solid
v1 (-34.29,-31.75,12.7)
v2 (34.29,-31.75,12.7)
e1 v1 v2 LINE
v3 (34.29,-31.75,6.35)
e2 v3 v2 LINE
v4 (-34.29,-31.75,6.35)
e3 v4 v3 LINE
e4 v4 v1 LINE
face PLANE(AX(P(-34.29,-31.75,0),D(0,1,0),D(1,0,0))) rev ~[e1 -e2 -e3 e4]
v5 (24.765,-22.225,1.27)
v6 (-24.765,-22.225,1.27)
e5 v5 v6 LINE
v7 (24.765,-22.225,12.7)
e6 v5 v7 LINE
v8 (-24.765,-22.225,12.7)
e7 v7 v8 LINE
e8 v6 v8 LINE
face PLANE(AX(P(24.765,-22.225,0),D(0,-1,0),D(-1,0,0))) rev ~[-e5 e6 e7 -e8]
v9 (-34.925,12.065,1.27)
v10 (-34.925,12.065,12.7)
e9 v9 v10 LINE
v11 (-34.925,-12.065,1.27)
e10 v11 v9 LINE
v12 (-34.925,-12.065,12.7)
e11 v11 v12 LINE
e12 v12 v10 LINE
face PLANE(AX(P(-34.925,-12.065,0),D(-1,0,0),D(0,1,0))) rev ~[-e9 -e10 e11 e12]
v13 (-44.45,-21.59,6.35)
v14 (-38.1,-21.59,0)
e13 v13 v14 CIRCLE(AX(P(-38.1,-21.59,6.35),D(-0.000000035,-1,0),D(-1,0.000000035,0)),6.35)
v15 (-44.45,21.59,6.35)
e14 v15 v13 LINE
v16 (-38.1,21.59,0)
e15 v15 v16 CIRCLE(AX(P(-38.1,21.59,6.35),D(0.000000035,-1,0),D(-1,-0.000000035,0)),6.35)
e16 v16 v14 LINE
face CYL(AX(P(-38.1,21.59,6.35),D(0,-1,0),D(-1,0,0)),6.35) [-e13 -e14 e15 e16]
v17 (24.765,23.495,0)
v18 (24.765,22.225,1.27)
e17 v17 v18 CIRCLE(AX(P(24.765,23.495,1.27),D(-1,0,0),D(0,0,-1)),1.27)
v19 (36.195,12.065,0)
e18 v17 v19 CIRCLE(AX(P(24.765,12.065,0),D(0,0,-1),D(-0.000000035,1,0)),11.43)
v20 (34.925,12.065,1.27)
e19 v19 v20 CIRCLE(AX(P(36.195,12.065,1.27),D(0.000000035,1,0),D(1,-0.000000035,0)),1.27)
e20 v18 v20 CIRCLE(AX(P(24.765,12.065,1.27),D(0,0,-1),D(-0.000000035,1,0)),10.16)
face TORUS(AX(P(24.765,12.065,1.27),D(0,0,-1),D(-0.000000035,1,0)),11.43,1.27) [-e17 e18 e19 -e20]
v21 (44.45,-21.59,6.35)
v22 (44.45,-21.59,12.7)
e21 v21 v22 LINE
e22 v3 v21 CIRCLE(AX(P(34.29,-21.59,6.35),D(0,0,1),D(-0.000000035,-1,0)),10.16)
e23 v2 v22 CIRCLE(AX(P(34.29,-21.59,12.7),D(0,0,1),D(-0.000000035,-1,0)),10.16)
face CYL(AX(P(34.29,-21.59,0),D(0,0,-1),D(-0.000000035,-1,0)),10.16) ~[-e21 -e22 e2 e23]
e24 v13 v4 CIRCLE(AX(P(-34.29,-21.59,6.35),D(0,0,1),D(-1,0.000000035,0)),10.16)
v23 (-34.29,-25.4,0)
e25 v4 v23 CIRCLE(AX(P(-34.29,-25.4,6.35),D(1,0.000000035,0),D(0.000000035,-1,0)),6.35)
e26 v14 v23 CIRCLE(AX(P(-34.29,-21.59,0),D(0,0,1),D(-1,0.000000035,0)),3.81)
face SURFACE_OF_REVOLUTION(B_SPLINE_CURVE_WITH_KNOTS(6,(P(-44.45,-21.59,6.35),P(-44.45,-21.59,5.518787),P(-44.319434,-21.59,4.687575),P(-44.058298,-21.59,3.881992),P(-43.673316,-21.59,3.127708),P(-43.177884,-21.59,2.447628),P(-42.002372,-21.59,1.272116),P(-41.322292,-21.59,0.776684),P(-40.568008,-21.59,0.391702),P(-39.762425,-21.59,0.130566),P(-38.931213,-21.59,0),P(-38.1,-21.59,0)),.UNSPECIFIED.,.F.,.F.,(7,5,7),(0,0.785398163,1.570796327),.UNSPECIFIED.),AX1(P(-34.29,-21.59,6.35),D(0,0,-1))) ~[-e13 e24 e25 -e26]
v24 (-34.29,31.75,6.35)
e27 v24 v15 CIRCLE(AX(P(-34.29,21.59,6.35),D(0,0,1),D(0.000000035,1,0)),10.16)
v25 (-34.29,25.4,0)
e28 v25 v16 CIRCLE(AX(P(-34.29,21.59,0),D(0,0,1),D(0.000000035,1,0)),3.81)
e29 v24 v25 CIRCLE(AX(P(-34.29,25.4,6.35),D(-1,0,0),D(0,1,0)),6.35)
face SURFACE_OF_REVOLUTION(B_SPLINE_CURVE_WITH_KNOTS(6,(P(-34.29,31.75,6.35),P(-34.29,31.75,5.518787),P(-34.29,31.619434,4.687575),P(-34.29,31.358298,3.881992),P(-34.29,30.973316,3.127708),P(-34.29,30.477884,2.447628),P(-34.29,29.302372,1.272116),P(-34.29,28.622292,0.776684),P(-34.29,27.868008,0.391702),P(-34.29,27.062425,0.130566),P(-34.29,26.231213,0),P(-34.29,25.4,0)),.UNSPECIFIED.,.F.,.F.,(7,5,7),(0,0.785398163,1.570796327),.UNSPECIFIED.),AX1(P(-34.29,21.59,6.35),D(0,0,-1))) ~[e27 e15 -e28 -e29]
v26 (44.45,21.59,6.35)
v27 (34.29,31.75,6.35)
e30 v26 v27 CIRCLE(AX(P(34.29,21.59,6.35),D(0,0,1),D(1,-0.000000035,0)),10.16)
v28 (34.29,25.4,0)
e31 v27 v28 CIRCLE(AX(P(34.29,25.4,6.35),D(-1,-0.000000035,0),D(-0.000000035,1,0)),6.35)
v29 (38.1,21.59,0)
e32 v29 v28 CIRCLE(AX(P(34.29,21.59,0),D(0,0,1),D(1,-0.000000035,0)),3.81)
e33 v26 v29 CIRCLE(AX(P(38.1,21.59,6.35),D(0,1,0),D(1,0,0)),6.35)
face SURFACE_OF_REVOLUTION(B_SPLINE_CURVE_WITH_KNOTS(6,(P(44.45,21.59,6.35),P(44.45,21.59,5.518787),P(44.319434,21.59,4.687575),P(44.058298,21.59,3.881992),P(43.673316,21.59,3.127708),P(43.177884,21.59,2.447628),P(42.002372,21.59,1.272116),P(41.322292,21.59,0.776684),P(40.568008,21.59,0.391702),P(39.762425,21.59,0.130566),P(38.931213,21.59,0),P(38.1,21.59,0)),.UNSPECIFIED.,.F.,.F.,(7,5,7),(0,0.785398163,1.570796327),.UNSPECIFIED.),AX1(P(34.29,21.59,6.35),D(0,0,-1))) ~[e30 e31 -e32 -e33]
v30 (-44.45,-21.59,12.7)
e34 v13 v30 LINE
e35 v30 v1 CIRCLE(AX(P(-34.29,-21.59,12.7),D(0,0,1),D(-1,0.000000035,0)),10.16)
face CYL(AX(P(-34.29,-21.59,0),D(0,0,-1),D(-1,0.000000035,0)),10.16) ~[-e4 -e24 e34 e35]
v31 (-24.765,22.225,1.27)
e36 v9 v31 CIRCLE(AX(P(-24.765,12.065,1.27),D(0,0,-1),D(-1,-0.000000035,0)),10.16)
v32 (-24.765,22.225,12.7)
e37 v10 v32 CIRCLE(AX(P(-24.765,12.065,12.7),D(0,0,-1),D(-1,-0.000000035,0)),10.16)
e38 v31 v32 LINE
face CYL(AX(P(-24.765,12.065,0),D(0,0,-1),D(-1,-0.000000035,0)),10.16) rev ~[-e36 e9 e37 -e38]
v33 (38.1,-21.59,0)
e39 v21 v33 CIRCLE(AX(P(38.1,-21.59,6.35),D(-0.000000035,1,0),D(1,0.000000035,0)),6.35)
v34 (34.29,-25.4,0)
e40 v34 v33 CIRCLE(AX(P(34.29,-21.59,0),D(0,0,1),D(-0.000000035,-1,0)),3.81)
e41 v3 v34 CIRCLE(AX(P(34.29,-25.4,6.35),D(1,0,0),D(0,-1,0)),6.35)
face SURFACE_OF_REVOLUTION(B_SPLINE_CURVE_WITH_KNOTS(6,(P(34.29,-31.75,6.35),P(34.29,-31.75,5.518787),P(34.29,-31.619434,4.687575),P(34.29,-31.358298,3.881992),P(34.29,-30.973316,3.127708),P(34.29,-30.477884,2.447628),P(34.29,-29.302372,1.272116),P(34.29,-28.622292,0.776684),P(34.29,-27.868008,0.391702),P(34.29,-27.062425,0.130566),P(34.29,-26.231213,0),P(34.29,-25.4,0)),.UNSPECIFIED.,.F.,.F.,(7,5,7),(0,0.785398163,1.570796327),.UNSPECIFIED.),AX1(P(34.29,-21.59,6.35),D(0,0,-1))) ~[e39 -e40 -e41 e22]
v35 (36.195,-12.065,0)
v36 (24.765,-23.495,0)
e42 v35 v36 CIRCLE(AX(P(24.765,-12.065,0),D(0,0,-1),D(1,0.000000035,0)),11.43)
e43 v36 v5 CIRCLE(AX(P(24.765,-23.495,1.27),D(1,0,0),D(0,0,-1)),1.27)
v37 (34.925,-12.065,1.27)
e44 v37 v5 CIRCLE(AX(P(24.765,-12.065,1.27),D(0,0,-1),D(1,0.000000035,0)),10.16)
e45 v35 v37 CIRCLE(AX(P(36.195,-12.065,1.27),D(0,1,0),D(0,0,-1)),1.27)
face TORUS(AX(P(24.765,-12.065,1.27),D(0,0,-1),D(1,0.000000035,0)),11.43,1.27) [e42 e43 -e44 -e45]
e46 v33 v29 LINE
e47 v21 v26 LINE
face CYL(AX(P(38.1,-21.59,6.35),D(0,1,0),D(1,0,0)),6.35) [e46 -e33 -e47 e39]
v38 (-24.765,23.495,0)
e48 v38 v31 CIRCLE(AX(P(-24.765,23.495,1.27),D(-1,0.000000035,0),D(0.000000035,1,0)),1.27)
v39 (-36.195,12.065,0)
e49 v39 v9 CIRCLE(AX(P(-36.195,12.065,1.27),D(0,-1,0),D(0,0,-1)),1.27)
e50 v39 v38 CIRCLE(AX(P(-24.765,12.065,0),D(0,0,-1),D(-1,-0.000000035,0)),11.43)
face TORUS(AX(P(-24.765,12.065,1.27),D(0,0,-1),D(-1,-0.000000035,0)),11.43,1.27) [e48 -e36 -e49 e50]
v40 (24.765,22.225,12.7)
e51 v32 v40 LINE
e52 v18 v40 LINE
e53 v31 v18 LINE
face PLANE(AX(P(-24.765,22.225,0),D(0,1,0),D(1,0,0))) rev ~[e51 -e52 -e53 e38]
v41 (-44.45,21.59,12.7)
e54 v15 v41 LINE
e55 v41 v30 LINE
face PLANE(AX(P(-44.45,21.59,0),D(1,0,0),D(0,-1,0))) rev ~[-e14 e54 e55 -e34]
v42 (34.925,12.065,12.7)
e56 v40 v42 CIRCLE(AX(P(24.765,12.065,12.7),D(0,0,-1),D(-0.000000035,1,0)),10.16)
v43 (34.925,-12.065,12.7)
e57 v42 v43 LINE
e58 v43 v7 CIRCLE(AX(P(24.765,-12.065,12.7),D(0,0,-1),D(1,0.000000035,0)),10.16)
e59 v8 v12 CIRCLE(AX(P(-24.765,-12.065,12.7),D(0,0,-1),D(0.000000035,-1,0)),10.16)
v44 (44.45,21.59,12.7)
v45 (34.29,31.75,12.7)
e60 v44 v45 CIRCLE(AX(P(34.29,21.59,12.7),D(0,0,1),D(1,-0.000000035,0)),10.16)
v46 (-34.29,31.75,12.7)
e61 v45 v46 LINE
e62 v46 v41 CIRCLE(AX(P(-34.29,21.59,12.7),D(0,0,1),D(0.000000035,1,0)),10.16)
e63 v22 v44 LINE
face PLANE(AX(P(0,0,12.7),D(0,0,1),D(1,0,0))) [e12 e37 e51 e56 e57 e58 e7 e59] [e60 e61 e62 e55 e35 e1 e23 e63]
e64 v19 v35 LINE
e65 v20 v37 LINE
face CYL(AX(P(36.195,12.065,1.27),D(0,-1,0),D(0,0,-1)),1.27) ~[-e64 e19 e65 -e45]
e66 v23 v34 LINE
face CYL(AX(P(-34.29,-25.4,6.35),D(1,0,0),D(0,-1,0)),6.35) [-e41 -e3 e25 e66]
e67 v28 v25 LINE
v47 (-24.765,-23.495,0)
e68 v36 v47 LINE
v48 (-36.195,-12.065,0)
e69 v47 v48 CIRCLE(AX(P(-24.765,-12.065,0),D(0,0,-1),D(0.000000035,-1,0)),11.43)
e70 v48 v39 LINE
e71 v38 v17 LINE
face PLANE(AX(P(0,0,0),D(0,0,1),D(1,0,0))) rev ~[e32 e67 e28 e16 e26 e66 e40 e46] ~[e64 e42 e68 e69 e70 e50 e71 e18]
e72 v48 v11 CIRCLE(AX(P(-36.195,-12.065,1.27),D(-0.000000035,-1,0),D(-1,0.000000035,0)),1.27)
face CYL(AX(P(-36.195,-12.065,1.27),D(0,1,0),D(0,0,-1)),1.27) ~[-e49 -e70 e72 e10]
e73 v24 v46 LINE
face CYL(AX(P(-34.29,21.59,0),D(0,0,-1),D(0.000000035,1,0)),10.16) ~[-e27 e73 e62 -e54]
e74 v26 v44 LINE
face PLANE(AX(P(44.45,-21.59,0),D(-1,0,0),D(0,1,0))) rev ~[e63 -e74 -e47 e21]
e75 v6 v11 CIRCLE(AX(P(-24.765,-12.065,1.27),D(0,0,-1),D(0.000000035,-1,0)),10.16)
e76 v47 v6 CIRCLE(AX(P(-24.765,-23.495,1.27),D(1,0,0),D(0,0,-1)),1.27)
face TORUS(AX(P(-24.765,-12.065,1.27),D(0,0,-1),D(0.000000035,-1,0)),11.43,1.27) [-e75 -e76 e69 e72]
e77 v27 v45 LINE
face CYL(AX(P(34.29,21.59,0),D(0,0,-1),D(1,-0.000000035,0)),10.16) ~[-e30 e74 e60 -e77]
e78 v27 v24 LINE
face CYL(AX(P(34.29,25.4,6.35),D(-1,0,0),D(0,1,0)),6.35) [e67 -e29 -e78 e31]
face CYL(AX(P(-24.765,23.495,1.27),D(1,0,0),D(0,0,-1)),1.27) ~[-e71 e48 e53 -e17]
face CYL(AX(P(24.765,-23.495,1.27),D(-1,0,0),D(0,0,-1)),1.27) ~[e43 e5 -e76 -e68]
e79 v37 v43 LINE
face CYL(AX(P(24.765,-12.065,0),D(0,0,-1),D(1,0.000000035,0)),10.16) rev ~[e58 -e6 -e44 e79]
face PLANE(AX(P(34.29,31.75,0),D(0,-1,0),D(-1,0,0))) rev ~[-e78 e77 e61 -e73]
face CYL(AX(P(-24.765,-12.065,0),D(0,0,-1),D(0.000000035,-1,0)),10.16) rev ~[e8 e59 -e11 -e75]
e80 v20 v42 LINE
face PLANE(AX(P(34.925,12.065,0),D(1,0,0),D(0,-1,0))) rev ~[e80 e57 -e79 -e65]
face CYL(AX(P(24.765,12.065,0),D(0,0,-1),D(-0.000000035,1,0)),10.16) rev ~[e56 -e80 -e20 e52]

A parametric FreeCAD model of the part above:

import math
import FreeCAD as App
import Part
import Sketcher
Q = App.Units.Quantity


def edges_at(feature, points):
    """Names of the edges that pass closest to the given points."""
    edges = feature.Shape.Edges
    near = lambda p: min(range(len(edges)), key=lambda i: edges[i].distToShape(Part.Vertex(*p))[0])
    return sorted({f"Edge{near(p) + 1}" for p in points})

doc = App.newDocument("Part")
params = doc.addObject("Spreadsheet::Sheet", "Params")
for row, (alias, value) in enumerate([
    ("sketch1_radius", "0.4 in"),
    ("sketch1_width", "2.7 in"),
    ("sketch1_height", "1.7 in"),
    ("sketch1_width2", "1.95 in"),
    ("sketch1_height2", "0.95 in"),
    ("pad1_length", "0.5 in"),
    ("fillet_radius", "0.25 in"),
    ("fillet2_radius", "0.05 in"),
], start=1):
    params.set(f"A{row}", alias)
    params.set(f"B{row}", "=" + value)
    params.setAlias(f"B{row}", alias)

body = doc.addObject("PartDesign::Body", "Body")

# Sketch on XY plane
sketch1 = body.newObject("Sketcher::SketchObject", "Sketch")
sketch1.AttachmentSupport = (doc.getObject("XY_Plane"), [""])
sketch1.MapMode = "FlatFace"
sketch1.addGeometry(Part.LineSegment(App.Vector(34, 32, 0), App.Vector(-34, 32, 0)), False)
sketch1.addGeometry(Part.ArcOfCircle(Part.Circle(App.Vector(-34, 22, 0), App.Vector(0, 0, 1), 10), math.radians(90), math.radians(180)), False)
sketch1.addGeometry(Part.LineSegment(App.Vector(-44, 22, 0), App.Vector(-44, -22, 0)), False)
sketch1.addGeometry(Part.ArcOfCircle(Part.Circle(App.Vector(-34, -22, 0), App.Vector(0, 0, 1), 10), math.radians(180), math.radians(270)), False)
sketch1.addGeometry(Part.LineSegment(App.Vector(-34, -32, 0), App.Vector(34, -32, 0)), False)
sketch1.addGeometry(Part.ArcOfCircle(Part.Circle(App.Vector(34, -22, 0), App.Vector(0, 0, 1), 10), math.radians(-90), math.radians(0)), False)
sketch1.addGeometry(Part.LineSegment(App.Vector(44, -22, 0), App.Vector(44, 22, 0)), False)
sketch1.addGeometry(Part.ArcOfCircle(Part.Circle(App.Vector(34, 22, 0), App.Vector(0, 0, 1), 10), math.radians(0), math.radians(90)), False)
sketch1.addGeometry(Part.LineSegment(App.Vector(35, 12, 0), App.Vector(35, -12, 0)), False)
sketch1.addGeometry(Part.ArcOfCircle(Part.Circle(App.Vector(25, -12, 0), App.Vector(0, 0, 1), 10), math.radians(-90), math.radians(0)), False)
sketch1.addGeometry(Part.LineSegment(App.Vector(25, -22, 0), App.Vector(-25, -22, 0)), False)
sketch1.addGeometry(Part.ArcOfCircle(Part.Circle(App.Vector(-25, -12, 0), App.Vector(0, 0, 1), 10), math.radians(180), math.radians(270)), False)
sketch1.addGeometry(Part.LineSegment(App.Vector(-35, -12, 0), App.Vector(-35, 12, 0)), False)
sketch1.addGeometry(Part.ArcOfCircle(Part.Circle(App.Vector(-25, 12, 0), App.Vector(0, 0, 1), 10), math.radians(90), math.radians(180)), False)
sketch1.addGeometry(Part.LineSegment(App.Vector(-25, 22, 0), App.Vector(25, 22, 0)), False)
sketch1.addGeometry(Part.ArcOfCircle(Part.Circle(App.Vector(25, 12, 0), App.Vector(0, 0, 1), 10), math.radians(0), math.radians(90)), False)
sketch1.addConstraint(Sketcher.Constraint("Tangent", 0, 2, 1, 1))
sketch1.addConstraint(Sketcher.Constraint("Tangent", 1, 2, 2, 1))
sketch1.addConstraint(Sketcher.Constraint("Tangent", 2, 2, 3, 1))
sketch1.addConstraint(Sketcher.Constraint("Tangent", 3, 2, 4, 1))
sketch1.addConstraint(Sketcher.Constraint("Tangent", 4, 2, 5, 1))
sketch1.addConstraint(Sketcher.Constraint("Tangent", 5, 2, 6, 1))
sketch1.addConstraint(Sketcher.Constraint("Tangent", 6, 2, 7, 1))
sketch1.addConstraint(Sketcher.Constraint("Tangent", 7, 2, 0, 1))
sketch1.addConstraint(Sketcher.Constraint("Tangent", 8, 2, 9, 2))
sketch1.addConstraint(Sketcher.Constraint("Tangent", 9, 1, 10, 1))
sketch1.addConstraint(Sketcher.Constraint("Tangent", 10, 2, 11, 2))
sketch1.addConstraint(Sketcher.Constraint("Tangent", 11, 1, 12, 1))
sketch1.addConstraint(Sketcher.Constraint("Tangent", 12, 2, 13, 2))
sketch1.addConstraint(Sketcher.Constraint("Tangent", 13, 1, 14, 1))
sketch1.addConstraint(Sketcher.Constraint("Tangent", 14, 2, 15, 2))
sketch1.addConstraint(Sketcher.Constraint("Tangent", 15, 1, 8, 1))
sketch1.addConstraint(Sketcher.Constraint("Horizontal", 0))
sketch1.addConstraint(Sketcher.Constraint("Vertical", 2))
sketch1.addConstraint(Sketcher.Constraint("Horizontal", 4))
sketch1.addConstraint(Sketcher.Constraint("Vertical", 6))
sketch1.addConstraint(Sketcher.Constraint("Vertical", 8))
sketch1.addConstraint(Sketcher.Constraint("Horizontal", 10))
sketch1.addConstraint(Sketcher.Constraint("Vertical", 12))
sketch1.addConstraint(Sketcher.Constraint("Horizontal", 14))
sketch1.addConstraint(Sketcher.Constraint("Equal", 1, 3))
sketch1.addConstraint(Sketcher.Constraint("Equal", 3, 5))
sketch1.addConstraint(Sketcher.Constraint("Equal", 5, 7))
sketch1.addConstraint(Sketcher.Constraint("Equal", 7, 9))
sketch1.addConstraint(Sketcher.Constraint("Equal", 9, 11))
sketch1.addConstraint(Sketcher.Constraint("Equal", 11, 13))
sketch1.addConstraint(Sketcher.Constraint("Equal", 13, 15))
sketch1.addConstraint(Sketcher.Constraint("Symmetric", 1, 3, 5, 3, -1, 1))
sketch1.addConstraint(Sketcher.Constraint("Symmetric", 9, 3, 13, 3, -1, 1))
sketch1.addConstraint(Sketcher.Constraint("Radius", 1, Q("0.4 in")))
sketch1.addConstraint(Sketcher.Constraint("DistanceX", 0, 2, 0, 1, Q("2.7 in")))
sketch1.addConstraint(Sketcher.Constraint("DistanceY", 2, 2, 2, 1, Q("1.7 in")))
sketch1.addConstraint(Sketcher.Constraint("DistanceX", 10, 2, 10, 1, Q("1.95 in")))
sketch1.addConstraint(Sketcher.Constraint("DistanceY", 8, 2, 8, 1, Q("0.95 in")))
sketch1.setExpression("Constraints[33]", "Params.sketch1_radius")
sketch1.setExpression("Constraints[34]", "Params.sketch1_width")
sketch1.setExpression("Constraints[35]", "Params.sketch1_height")
sketch1.setExpression("Constraints[36]", "Params.sketch1_width2")
sketch1.setExpression("Constraints[37]", "Params.sketch1_height2")
pad1 = body.newObject("PartDesign::Pad", "Pad")
pad1.Profile = sketch1
pad1.setExpression("Length", "Params.pad1_length")
doc.recompute()

fillet = body.newObject("PartDesign::Fillet", "Fillet")
fillet.Base = (pad1, edges_at(pad1, [(-41.474, -28.774, 0)]))
fillet.setExpression("Radius", "Params.fillet_radius")
doc.recompute()

fillet2 = body.newObject("PartDesign::Fillet", "Fillet001")
fillet2.Base = (fillet, edges_at(fillet, [
    (0, -22.225, 0),
    (-31.949, -19.249, 0),
    (-34.925, 0, 0),
    (-31.949, 19.249, 0),
    (0, 22.225, 0),
    (31.949, 19.249, 0),
    (34.925, 0, 0),
    (31.949, -19.249, 0),
]))
fillet2.setExpression("Radius", "Params.fillet2_radius")

doc.recompute()
